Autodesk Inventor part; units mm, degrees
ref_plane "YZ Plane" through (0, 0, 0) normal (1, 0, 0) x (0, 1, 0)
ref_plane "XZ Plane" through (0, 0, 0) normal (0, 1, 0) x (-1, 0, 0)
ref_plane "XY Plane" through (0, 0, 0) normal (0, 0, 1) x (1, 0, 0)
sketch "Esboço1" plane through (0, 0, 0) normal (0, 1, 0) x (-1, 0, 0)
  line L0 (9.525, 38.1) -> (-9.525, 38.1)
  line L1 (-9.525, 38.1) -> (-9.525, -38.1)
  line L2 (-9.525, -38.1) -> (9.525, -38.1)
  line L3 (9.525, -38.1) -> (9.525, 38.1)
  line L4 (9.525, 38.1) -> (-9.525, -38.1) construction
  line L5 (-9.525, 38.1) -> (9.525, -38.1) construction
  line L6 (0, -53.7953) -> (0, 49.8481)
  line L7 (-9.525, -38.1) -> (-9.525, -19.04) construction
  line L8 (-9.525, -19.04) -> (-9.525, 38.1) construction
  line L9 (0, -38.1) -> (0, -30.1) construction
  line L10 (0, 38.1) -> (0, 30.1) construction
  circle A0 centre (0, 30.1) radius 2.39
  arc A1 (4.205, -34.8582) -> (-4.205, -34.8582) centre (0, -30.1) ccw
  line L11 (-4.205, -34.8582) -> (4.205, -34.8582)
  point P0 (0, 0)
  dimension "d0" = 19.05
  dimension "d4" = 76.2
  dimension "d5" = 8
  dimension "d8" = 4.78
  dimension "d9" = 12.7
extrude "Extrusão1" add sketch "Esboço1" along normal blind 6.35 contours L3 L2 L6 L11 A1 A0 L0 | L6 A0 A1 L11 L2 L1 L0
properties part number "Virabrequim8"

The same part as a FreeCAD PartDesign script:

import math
import FreeCAD as App
import Part
import Sketcher
from FreeCAD import Vector
Q = App.Units.Quantity


def add_polygon(sketch, points):
    """Adds a closed chain of lines whose ends are joined by coincident constraints."""
    first, n = sketch.GeometryCount, len(points)
    for a, b in zip(points, points[1:] + points[:1]):
        sketch.addGeometry(Part.LineSegment(App.Vector(*a, 0), App.Vector(*b, 0)), False)
    for i in range(n):
        sketch.addConstraint(Sketcher.Constraint("Coincident", first + i, 2, first + (i + 1) % n, 1))

doc = App.newDocument("Part")
body = doc.addObject("PartDesign::Body", "Body")

sketch1 = body.newObject("Sketcher::SketchObject", "Sketch")
sketch1.AttachmentSupport = (doc.getObject("XZ_Plane"), [""])
sketch1.MapMode = "FlatFace"
add_polygon(sketch1, [(-9.5, -38.1), (-9.5, 38.1), (9.5, 38.1), (9.5, -38.1)])
sketch1.addGeometry(Part.LineSegment(Vector(-4.2, -34.9, 0), Vector(4.2, -34.9, 0)), False)
sketch1.addGeometry(Part.ArcOfCircle(Part.Circle(Vector(0, -30.1, 0), Vector(0, 0, 1), 6.3), math.radians(-49), math.radians(229)), False)
sketch1.addGeometry(Part.Circle(Vector(0, 30.1, 0), Vector(0, 0, 1), 2.4), False)
sketch1.addConstraint([
    Sketcher.Constraint("Coincident", 4, 1, 5, 2),
    Sketcher.Constraint("Coincident", 5, 1, 4, 2),
    Sketcher.Constraint("Vertical", 0),
    Sketcher.Constraint("Horizontal", 1),
    Sketcher.Constraint("Vertical", 2),
    Sketcher.Constraint("Horizontal", 3),
    Sketcher.Constraint("Horizontal", 4),
    Sketcher.Constraint("Symmetric", 5, 3, 6, 3, -1, 1),
    Sketcher.Constraint("Symmetric", 0, 2, 2, 2, -1, 1),
    Sketcher.Constraint("PointOnObject", 5, 3, -2),
    Sketcher.Constraint("DistanceY", 0, 1, 0, 2, Q("3 in")),
    Sketcher.Constraint("Radius", 5, Q("0.25 in")),
    Sketcher.Constraint("Diameter", 6, Q("0.1882 in")),
    Sketcher.Constraint("DistanceX", 1, 1, 1, 2, Q("0.75 in")),
    Sketcher.Constraint("DistanceY", 6, 3, 0, 2, 8.0),
    Sketcher.Constraint("DistanceX", 4, 1, 4, 2, Q("0.3311 in")),
])
pad1 = body.newObject("PartDesign::Pad", "Pad")
pad1.Profile = sketch1
pad1.Length = Q("0.25 in")
pad1.Reversed = True

doc.recompute()
